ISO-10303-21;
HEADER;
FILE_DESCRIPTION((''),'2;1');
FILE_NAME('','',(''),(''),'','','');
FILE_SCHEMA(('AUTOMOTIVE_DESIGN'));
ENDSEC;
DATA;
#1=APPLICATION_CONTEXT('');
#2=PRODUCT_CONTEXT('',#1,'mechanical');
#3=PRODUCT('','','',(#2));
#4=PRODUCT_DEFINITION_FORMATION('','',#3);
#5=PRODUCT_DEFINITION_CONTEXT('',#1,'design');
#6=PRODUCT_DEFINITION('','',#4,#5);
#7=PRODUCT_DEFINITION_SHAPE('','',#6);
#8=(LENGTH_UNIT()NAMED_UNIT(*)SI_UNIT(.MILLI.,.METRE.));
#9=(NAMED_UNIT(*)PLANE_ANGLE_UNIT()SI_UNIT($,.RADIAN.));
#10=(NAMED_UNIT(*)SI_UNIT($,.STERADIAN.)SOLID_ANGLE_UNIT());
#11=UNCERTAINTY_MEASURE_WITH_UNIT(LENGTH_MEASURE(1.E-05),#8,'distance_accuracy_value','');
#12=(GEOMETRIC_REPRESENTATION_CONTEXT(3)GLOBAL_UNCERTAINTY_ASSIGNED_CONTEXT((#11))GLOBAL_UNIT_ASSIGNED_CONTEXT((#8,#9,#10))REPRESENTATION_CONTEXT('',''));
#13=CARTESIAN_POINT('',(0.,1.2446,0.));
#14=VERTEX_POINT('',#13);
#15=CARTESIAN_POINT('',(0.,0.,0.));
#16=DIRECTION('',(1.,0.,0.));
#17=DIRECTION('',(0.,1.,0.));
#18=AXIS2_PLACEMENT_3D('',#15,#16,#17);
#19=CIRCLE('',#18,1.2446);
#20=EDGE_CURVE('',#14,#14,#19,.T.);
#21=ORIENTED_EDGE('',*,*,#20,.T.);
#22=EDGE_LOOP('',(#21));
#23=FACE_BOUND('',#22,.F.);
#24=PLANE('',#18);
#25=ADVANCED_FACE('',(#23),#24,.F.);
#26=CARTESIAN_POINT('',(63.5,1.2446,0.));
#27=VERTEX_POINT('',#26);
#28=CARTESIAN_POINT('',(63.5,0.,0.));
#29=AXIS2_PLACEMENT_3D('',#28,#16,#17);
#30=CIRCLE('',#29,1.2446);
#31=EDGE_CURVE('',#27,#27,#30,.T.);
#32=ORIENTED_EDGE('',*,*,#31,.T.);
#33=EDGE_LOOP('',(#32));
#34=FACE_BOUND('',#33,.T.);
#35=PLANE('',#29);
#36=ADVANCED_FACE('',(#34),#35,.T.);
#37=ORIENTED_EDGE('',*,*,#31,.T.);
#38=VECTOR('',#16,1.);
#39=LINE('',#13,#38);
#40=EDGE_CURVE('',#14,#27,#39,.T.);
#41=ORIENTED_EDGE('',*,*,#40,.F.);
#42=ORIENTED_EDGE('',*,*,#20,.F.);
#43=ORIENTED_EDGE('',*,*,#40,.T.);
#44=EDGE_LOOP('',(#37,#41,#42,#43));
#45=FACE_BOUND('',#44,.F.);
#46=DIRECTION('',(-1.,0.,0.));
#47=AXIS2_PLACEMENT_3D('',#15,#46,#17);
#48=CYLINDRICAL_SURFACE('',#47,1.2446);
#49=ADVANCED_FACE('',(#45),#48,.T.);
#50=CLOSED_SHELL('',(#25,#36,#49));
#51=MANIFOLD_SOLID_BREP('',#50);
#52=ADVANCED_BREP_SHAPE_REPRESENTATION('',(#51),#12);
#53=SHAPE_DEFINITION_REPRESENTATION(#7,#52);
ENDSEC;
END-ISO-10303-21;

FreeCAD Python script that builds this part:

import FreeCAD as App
import Part
import Sketcher
from FreeCAD import Vector
Q = App.Units.Quantity

doc = App.newDocument("Part")
body = doc.addObject("PartDesign::Body", "Body")

sketch1 = body.newObject("Sketcher::SketchObject", "Sketch")
sketch1.AttachmentSupport = (doc.getObject("YZ_Plane"), [""])
sketch1.MapMode = "FlatFace"
sketch1.addGeometry(Part.Circle(Vector(0, 0, 0), Vector(0, 0, 1), 1.2), False)
sketch1.addConstraint([
    Sketcher.Constraint("Coincident", 0, 3, -1, 1),
    Sketcher.Constraint("Diameter", 0, Q("0.098 in")),
])
pad1 = body.newObject("PartDesign::Pad", "Pad")
pad1.Profile = sketch1
pad1.Length = Q("2.5 in")

doc.recompute()
